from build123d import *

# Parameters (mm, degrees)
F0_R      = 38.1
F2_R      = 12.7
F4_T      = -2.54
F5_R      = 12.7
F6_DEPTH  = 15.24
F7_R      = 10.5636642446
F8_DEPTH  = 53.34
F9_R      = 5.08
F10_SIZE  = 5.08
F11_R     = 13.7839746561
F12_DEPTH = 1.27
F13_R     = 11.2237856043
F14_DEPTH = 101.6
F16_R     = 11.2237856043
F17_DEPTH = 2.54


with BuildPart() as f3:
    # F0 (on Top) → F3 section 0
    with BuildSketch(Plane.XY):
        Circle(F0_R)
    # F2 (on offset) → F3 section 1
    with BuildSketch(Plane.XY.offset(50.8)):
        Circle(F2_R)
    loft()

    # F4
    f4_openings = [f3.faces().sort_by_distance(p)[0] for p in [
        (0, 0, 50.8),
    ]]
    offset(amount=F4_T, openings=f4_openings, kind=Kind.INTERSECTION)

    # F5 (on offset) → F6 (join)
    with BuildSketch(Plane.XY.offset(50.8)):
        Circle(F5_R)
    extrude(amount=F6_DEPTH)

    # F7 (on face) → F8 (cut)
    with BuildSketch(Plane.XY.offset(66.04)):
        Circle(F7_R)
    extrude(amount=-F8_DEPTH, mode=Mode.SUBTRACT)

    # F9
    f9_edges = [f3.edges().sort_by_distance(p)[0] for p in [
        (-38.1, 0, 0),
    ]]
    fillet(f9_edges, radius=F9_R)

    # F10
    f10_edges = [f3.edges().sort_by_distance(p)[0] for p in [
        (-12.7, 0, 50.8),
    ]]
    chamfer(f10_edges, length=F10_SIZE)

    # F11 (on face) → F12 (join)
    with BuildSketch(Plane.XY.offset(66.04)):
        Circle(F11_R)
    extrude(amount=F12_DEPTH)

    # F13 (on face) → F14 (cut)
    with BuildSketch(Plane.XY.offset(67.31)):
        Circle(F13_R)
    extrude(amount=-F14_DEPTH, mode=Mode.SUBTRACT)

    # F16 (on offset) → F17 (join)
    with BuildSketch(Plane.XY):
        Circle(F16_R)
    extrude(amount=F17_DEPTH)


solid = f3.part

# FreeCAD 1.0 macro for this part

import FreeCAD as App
import Part
import Sketcher

V = App.Vector
Q = App.Units.Quantity


def edges_at(feature, points):
    """Names of the edges that pass closest to the given points."""
    edges = feature.Shape.Edges
    near = lambda p: min(range(len(edges)), key=lambda i: edges[i].distToShape(Part.Vertex(*p))[0])
    return sorted({f"Edge{near(p) + 1}" for p in points})


def faces_at(feature, points):
    """Names of the faces that lie closest to the given points."""
    faces = feature.Shape.Faces
    near = lambda p: min(range(len(faces)), key=lambda i: faces[i].distToShape(Part.Vertex(*p))[0])
    return sorted({f"Face{near(p) + 1}" for p in points})

doc = App.newDocument("Part")
params = doc.addObject("Spreadsheet::Sheet", "Params")
for row, (alias, value) in enumerate([
    ("sketch1_diameter", "3 in"),
    ("sketch2_diameter", "1 in"),
    ("thickness_wall", "0.1 in"),
    ("sketch3_diameter", "1 in"),
    ("pad1_length", "0.6 in"),
    ("pocket1_length", "2.1 in"),
    ("fillet_radius", "0.2 in"),
    ("chamfer_size", "0.2 in"),
    ("pad2_length", "0.05 in"),
    ("pocket2_length", "4 in"),
    ("pad3_length", "0.1 in"),
], start=1):
    params.set(f"A{row}", alias)
    params.set(f"B{row}", "=" + value)
    params.setAlias(f"B{row}", alias)

body = doc.addObject("PartDesign::Body", "Body")

# Sketch on XY plane
sketch1 = doc.addObject("Sketcher::SketchObject", "Sketch")
body.addObject(sketch1)
sketch1.AttachmentSupport = (doc.XY_Plane, [""])
sketch1.MapMode = "FlatFace"
sketch1.addGeometry(Part.Circle(V(0, 0, 0), V(0, 0, 1), 38), False)
sketch1.addConstraint([
    Sketcher.Constraint("Coincident", 0, 3, -1, 1),
    Sketcher.Constraint("Diameter", 0, Q("3 in")),
])
sketch1.setExpression("Constraints[1]", "Params.sketch1_diameter")

# Sketch on XY plane
sketch2 = doc.addObject("Sketcher::SketchObject", "Sketch001")
body.addObject(sketch2)
sketch2.AttachmentSupport = (doc.XY_Plane, [""])
sketch2.MapMode = "FlatFace"
sketch2.AttachmentOffset = App.Placement(V(0, 0, 2 * 25.4), App.Rotation())
sketch2.addGeometry(Part.Circle(V(0, 0, 0), V(0, 0, 1), 13), False)
sketch2.addConstraint([
    Sketcher.Constraint("Coincident", 0, 3, -1, 1),
    Sketcher.Constraint("Diameter", 0, Q("1 in")),
])
sketch2.setExpression("Constraints[1]", "Params.sketch2_diameter")

additiveloft = doc.addObject("PartDesign::AdditiveLoft", "AdditiveLoft")
body.addObject(additiveloft)
additiveloft.Profile = sketch1
additiveloft.Sections = [sketch2]
doc.recompute()

thickness = doc.addObject("PartDesign::Thickness", "Thickness")
body.addObject(thickness)
thickness.Base = (additiveloft, faces_at(additiveloft, [(0, 0, 50.8)]))
thickness.setExpression("Value", "Params.thickness_wall")
thickness.Reversed = True
thickness.Join = "Intersection"

# Sketch on XY plane
sketch3 = doc.addObject("Sketcher::SketchObject", "Sketch002")
body.addObject(sketch3)
sketch3.AttachmentSupport = (doc.XY_Plane, [""])
sketch3.MapMode = "FlatFace"
sketch3.AttachmentOffset = App.Placement(V(0, 0, 2 * 25.4), App.Rotation())
sketch3.addGeometry(Part.Circle(V(0, 0, 0), V(0, 0, 1), 13), False)
sketch3.addConstraint([
    Sketcher.Constraint("Coincident", 0, 3, -1, 1),
    Sketcher.Constraint("Diameter", 0, Q("1 in")),
])
sketch3.setExpression("Constraints[1]", "Params.sketch3_diameter")
pad1 = doc.addObject("PartDesign::Pad", "Pad")
body.addObject(pad1)
pad1.Profile = sketch3
pad1.setExpression("Length", "Params.pad1_length")

# Sketch on XY plane
sketch4 = doc.addObject("Sketcher::SketchObject", "Sketch003")
body.addObject(sketch4)
sketch4.AttachmentSupport = (doc.XY_Plane, [""])
sketch4.MapMode = "FlatFace"
sketch4.AttachmentOffset = App.Placement(V(0, 0, 2.6 * 25.4), App.Rotation())
sketch4.addGeometry(Part.Circle(V(0, 0, 0), V(0, 0, 1), 11), False)
sketch4.addConstraint([
    Sketcher.Constraint("Coincident", 0, 3, -1, 1),
    Sketcher.Constraint("Diameter", 0, 21.127328),
])
pocket1 = doc.addObject("PartDesign::Pocket", "Pocket")
body.addObject(pocket1)
pocket1.Profile = sketch4
pocket1.setExpression("Length", "Params.pocket1_length")
doc.recompute()

fillet = doc.addObject("PartDesign::Fillet", "Fillet")
body.addObject(fillet)
fillet.Base = (pocket1, edges_at(pocket1, [(-38.1, 0, 0)]))
fillet.setExpression("Radius", "Params.fillet_radius")
doc.recompute()

chamfer = doc.addObject("PartDesign::Chamfer", "Chamfer")
body.addObject(chamfer)
chamfer.Base = (fillet, edges_at(fillet, [(-12.7, 0, 50.8)]))
chamfer.setExpression("Size", "Params.chamfer_size")

# Sketch on XY plane
sketch5 = doc.addObject("Sketcher::SketchObject", "Sketch004")
body.addObject(sketch5)
sketch5.AttachmentSupport = (doc.XY_Plane, [""])
sketch5.MapMode = "FlatFace"
sketch5.AttachmentOffset = App.Placement(V(0, 0, 2.6 * 25.4), App.Rotation())
sketch5.addGeometry(Part.Circle(V(0, 0, 0), V(0, 0, 1), 14), False)
sketch5.addConstraint([
    Sketcher.Constraint("Coincident", 0, 3, -1, 1),
    Sketcher.Constraint("Diameter", 0, 27.567949),
])
pad2 = doc.addObject("PartDesign::Pad", "Pad001")
body.addObject(pad2)
pad2.Profile = sketch5
pad2.setExpression("Length", "Params.pad2_length")

# Sketch on XY plane
sketch6 = doc.addObject("Sketcher::SketchObject", "Sketch005")
body.addObject(sketch6)
sketch6.AttachmentSupport = (doc.XY_Plane, [""])
sketch6.MapMode = "FlatFace"
sketch6.AttachmentOffset = App.Placement(V(0, 0, 2.65 * 25.4), App.Rotation())
sketch6.addGeometry(Part.Circle(V(0, 0, 0), V(0, 0, 1), 11), False)
sketch6.addConstraint([
    Sketcher.Constraint("Coincident", 0, 3, -1, 1),
    Sketcher.Constraint("Diameter", 0, 22.447571),
])
pocket2 = doc.addObject("PartDesign::Pocket", "Pocket001")
body.addObject(pocket2)
pocket2.Profile = sketch6
pocket2.setExpression("Length", "Params.pocket2_length")

# Sketch on XY plane
sketch7 = doc.addObject("Sketcher::SketchObject", "Sketch006")
body.addObject(sketch7)
sketch7.AttachmentSupport = (doc.XY_Plane, [""])
sketch7.MapMode = "FlatFace"
sketch7.addGeometry(Part.Circle(V(0, 0, 0), V(0, 0, 1), 11), False)
sketch7.addConstraint([
    Sketcher.Constraint("Coincident", 0, 3, -1, 1),
    Sketcher.Constraint("Diameter", 0, 22.447571),
])
pad3 = doc.addObject("PartDesign::Pad", "Pad002")
body.addObject(pad3)
pad3.Profile = sketch7
pad3.setExpression("Length", "Params.pad3_length")

doc.recompute()
